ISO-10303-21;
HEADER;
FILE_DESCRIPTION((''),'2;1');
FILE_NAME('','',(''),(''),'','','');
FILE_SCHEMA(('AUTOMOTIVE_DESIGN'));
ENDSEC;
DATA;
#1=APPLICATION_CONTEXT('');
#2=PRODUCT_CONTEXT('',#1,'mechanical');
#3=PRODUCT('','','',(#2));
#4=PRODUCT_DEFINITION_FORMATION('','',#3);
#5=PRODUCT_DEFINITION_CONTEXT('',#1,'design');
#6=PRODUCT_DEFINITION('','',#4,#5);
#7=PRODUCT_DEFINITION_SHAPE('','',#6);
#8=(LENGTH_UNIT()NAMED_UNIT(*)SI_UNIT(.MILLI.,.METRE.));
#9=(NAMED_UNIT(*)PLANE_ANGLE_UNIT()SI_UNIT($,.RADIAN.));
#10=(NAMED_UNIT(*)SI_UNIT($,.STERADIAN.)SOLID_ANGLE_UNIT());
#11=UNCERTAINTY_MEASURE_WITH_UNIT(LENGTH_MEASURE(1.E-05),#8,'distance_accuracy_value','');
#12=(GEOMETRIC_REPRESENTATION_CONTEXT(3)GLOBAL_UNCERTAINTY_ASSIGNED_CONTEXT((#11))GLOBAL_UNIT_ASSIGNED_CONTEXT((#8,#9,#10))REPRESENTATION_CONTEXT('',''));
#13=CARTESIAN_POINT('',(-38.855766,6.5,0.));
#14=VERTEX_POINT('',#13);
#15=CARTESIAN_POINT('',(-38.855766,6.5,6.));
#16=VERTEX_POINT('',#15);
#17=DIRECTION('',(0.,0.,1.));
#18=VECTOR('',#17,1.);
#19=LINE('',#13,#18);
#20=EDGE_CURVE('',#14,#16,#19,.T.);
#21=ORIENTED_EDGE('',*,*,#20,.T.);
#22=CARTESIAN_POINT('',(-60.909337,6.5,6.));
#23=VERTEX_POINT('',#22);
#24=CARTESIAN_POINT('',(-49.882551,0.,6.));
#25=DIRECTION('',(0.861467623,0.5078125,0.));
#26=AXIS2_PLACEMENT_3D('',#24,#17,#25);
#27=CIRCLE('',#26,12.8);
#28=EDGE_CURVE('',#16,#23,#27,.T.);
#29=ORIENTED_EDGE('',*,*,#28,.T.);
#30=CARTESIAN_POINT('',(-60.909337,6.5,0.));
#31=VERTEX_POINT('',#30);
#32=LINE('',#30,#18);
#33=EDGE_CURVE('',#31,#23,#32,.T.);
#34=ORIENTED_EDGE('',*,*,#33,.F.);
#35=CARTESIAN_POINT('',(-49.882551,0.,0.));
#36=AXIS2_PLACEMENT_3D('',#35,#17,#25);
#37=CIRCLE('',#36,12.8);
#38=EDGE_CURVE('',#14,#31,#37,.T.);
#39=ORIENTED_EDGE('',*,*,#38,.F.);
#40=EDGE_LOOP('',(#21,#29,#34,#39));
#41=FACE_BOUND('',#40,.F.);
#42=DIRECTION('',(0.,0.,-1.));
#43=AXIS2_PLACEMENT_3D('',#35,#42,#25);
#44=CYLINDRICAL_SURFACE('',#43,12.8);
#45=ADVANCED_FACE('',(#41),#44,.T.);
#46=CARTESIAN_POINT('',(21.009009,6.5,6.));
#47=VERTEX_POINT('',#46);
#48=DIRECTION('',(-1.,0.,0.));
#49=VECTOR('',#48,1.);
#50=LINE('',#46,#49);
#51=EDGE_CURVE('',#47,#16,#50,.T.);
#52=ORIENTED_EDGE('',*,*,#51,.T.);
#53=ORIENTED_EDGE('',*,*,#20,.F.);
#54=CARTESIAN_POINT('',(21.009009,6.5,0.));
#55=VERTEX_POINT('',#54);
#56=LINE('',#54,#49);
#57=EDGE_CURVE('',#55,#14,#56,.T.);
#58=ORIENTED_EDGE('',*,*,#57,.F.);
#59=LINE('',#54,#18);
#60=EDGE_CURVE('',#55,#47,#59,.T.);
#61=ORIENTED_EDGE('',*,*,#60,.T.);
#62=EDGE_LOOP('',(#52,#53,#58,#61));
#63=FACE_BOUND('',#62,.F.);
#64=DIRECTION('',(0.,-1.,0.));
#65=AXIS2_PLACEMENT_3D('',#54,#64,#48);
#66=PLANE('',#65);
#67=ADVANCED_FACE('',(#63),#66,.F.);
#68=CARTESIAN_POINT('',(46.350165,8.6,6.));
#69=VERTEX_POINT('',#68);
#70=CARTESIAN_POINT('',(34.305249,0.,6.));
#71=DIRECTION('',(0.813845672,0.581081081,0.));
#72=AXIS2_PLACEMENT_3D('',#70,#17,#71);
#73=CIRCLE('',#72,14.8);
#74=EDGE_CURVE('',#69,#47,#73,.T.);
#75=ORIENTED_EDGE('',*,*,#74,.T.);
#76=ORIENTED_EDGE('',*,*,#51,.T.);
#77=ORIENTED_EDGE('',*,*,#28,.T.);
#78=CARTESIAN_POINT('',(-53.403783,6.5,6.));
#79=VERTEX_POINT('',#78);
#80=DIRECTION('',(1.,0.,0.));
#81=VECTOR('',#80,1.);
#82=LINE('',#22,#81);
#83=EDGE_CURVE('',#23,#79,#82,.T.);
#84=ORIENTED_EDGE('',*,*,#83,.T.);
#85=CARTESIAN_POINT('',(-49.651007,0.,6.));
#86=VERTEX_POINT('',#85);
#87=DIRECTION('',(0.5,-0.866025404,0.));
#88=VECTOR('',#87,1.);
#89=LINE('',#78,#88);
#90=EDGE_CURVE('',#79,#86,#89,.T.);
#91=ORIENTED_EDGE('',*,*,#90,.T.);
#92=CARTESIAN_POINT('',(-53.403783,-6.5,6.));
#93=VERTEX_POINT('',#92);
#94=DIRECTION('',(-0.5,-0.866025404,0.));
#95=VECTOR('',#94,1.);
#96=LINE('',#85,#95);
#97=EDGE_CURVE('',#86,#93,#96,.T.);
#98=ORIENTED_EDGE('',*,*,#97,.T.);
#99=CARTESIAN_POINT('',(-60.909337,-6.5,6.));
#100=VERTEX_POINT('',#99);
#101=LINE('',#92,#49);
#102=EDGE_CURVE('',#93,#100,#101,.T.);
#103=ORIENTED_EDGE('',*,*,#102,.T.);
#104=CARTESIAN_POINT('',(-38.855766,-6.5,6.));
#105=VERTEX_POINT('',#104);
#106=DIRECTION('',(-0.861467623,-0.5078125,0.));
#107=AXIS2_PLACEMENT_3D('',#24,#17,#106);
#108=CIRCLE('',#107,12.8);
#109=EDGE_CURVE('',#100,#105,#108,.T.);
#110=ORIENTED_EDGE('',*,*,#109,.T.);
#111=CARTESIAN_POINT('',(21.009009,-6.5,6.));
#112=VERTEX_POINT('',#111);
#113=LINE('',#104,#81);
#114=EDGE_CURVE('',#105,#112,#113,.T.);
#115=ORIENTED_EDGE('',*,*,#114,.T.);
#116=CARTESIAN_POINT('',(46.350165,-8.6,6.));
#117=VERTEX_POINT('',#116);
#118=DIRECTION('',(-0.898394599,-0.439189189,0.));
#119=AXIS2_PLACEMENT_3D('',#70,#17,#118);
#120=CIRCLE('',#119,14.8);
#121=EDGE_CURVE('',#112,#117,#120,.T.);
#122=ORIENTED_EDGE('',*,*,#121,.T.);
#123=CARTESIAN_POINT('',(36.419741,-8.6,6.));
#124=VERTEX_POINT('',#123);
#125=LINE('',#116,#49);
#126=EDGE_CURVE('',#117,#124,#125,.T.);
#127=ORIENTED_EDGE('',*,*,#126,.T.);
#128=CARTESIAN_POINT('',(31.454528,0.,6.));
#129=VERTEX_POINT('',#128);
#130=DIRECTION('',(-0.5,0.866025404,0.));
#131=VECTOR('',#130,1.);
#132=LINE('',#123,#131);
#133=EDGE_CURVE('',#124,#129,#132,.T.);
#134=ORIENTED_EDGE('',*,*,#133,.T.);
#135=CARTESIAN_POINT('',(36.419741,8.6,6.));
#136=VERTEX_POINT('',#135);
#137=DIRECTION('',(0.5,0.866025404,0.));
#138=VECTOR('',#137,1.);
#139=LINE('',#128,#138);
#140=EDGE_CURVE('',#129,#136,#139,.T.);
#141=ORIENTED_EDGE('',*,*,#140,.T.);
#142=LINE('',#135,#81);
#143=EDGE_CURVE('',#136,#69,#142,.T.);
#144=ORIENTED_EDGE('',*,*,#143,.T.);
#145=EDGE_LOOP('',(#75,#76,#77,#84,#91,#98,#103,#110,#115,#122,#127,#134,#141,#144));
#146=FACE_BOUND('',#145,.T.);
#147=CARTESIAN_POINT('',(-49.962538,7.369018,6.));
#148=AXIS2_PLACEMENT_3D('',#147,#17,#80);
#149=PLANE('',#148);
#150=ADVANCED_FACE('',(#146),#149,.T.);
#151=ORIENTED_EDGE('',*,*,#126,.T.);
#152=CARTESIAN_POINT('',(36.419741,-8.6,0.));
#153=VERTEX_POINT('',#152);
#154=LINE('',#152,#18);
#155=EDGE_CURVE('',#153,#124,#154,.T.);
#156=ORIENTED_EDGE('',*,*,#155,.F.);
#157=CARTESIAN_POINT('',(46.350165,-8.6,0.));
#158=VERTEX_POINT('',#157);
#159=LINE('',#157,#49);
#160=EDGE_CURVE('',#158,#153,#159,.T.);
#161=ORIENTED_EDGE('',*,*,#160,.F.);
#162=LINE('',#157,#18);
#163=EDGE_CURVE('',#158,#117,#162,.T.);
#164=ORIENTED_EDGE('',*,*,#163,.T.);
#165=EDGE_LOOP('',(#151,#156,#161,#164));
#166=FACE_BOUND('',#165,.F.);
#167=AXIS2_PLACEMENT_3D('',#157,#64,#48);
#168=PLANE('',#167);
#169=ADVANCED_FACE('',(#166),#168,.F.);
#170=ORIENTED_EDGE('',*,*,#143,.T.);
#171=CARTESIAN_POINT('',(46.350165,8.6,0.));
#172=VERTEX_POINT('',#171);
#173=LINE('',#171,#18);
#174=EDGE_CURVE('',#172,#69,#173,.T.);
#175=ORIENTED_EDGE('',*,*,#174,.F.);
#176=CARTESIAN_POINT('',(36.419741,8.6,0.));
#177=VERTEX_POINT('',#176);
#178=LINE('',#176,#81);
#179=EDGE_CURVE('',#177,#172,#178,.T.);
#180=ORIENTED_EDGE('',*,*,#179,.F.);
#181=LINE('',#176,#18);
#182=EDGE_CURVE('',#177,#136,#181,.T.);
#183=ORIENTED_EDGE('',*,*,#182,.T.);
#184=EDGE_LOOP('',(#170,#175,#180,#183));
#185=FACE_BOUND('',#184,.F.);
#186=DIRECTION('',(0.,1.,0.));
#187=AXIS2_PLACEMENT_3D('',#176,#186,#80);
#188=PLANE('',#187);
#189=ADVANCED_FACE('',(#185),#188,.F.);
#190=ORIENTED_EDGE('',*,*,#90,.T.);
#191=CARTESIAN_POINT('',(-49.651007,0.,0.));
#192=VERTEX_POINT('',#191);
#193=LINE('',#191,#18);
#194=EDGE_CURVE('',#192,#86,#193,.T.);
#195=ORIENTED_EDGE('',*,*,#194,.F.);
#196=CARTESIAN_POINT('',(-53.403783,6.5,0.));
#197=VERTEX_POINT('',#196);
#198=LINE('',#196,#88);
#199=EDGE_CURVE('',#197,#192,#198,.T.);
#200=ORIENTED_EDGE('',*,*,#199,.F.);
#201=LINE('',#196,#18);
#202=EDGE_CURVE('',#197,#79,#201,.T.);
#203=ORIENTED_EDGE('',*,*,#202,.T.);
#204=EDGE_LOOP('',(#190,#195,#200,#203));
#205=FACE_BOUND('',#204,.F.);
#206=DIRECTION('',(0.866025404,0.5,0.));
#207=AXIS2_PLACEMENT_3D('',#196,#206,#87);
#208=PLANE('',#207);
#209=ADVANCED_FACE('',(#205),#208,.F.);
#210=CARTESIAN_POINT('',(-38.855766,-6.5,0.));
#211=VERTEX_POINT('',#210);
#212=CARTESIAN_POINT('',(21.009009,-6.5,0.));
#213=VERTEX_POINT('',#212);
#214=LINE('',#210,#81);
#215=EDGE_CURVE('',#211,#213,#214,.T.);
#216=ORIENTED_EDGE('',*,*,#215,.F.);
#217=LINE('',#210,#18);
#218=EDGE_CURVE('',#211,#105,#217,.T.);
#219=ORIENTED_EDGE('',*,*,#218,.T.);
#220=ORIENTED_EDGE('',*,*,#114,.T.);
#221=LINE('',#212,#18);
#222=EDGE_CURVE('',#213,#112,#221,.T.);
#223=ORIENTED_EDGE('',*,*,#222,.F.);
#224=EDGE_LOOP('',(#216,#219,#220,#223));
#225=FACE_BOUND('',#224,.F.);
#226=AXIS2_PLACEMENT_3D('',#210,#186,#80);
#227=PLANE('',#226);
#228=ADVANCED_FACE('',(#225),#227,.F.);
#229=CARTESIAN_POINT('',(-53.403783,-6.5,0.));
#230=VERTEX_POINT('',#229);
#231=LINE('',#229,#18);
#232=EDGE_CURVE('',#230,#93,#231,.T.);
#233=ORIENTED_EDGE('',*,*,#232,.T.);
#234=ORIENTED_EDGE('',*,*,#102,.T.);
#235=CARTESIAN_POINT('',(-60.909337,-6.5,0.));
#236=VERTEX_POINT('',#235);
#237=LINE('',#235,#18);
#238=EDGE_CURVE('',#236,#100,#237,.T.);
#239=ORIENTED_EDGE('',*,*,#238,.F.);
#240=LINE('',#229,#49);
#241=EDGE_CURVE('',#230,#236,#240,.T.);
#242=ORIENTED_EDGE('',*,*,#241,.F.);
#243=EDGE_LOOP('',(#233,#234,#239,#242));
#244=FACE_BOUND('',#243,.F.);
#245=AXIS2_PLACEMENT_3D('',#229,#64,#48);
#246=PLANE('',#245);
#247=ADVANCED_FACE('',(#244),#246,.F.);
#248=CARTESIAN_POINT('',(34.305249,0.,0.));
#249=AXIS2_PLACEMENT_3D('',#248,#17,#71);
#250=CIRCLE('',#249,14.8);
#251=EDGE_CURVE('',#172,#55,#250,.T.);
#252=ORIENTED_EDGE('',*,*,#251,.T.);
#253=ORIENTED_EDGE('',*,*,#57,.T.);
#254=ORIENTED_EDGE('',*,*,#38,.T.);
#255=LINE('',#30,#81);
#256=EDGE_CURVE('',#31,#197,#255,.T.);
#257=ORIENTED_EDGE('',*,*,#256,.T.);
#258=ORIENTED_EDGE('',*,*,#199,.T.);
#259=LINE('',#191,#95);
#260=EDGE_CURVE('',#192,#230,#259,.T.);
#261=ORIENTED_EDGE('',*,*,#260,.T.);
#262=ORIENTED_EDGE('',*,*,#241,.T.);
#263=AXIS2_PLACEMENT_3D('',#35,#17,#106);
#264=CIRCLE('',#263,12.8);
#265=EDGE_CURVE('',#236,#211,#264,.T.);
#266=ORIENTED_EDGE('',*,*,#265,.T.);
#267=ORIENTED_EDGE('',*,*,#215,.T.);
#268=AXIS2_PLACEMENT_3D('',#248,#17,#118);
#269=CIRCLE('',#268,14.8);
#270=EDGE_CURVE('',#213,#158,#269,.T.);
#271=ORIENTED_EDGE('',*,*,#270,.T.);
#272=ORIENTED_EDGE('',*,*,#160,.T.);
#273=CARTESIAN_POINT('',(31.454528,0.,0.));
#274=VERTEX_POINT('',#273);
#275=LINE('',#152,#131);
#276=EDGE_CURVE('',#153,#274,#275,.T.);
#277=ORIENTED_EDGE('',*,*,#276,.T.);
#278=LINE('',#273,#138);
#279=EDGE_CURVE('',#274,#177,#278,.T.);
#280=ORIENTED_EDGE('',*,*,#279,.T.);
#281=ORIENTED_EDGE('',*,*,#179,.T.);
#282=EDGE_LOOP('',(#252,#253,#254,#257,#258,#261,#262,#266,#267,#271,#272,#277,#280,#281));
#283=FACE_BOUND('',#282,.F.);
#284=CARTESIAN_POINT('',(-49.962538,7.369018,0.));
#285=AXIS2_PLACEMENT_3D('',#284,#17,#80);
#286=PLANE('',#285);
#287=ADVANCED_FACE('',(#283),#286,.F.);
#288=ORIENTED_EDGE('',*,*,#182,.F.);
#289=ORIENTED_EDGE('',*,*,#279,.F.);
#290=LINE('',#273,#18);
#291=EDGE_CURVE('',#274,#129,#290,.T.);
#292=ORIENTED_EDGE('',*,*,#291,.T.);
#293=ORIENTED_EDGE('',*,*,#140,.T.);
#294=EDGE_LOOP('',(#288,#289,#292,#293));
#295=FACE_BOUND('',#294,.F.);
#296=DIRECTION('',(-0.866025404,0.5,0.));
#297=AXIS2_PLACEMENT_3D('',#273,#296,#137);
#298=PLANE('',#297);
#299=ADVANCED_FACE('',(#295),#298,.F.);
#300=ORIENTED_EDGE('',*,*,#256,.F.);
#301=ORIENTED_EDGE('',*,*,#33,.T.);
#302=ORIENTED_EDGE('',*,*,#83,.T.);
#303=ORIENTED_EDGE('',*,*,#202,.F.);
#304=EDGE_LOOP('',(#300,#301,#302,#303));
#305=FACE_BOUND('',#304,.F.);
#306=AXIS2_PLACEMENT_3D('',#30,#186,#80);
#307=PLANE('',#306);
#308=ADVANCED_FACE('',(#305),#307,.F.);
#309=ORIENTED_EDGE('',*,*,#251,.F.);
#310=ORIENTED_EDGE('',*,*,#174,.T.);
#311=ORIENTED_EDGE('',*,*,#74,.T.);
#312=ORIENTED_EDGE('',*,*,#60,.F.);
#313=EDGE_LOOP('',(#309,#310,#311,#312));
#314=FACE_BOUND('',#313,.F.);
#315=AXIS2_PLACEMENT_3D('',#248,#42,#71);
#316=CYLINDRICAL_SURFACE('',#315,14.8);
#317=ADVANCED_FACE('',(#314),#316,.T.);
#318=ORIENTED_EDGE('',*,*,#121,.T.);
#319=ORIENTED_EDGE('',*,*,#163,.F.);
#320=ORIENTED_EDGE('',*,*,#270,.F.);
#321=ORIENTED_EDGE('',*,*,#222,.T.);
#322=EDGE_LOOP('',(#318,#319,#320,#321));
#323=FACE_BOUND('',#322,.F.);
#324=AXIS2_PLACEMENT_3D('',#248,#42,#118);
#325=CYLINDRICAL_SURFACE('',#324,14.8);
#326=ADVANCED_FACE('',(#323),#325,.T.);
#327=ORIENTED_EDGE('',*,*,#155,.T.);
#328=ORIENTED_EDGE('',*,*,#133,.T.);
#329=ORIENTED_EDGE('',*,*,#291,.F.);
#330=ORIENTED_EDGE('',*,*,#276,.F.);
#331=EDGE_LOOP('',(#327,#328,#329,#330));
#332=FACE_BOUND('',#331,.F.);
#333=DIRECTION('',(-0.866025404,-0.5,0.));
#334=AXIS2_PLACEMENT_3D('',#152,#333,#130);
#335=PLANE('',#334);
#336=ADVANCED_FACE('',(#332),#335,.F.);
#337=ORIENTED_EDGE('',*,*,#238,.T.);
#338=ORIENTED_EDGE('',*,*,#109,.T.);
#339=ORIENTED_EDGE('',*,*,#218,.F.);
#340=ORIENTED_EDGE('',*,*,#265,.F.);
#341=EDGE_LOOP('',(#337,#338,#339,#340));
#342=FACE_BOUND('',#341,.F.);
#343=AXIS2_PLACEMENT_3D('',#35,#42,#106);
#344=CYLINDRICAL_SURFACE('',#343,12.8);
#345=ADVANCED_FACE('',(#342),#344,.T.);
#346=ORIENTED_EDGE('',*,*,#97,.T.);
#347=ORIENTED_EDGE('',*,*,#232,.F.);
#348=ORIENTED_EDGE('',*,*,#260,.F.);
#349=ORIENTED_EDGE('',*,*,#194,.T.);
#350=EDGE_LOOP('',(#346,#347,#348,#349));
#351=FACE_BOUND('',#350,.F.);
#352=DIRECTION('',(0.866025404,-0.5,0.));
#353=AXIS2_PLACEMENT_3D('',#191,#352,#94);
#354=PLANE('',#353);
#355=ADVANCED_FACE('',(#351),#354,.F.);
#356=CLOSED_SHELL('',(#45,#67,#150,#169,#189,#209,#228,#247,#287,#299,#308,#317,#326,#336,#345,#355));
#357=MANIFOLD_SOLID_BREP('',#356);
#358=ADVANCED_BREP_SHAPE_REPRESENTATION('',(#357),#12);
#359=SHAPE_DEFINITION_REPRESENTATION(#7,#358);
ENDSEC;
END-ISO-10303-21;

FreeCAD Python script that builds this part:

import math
import FreeCAD as App
import Part
import Sketcher
from FreeCAD import Vector
Q = App.Units.Quantity

doc = App.newDocument("Part")
body = doc.addObject("PartDesign::Body", "Body")

sketch1 = doc.addObject("Sketcher::SketchObject", "Sketch")
body.addObject(sketch1)
sketch1.AttachmentSupport = (doc.XY_Plane, [""])
sketch1.MapMode = "FlatFace"
sketch1.addGeometry([
    Part.ArcOfCircle(Part.Circle(Vector(-49.882551, 0, 0), Vector(0, 0, 1), 12.8), math.radians(30.518231), math.radians(149.481769)),
    Part.LineSegment(Vector(-60.909337, 6.5, 0), Vector(-53.403783, 6.5, 0)),
    Part.LineSegment(Vector(-53.403783, 6.5, 0), Vector(-49.651007, 0, 0)),
    Part.LineSegment(Vector(-49.651007, 0, 0), Vector(-53.403783, -6.5, 0)),
    Part.LineSegment(Vector(-53.403783, -6.5, 0), Vector(-60.909337, -6.5, 0)),
    Part.ArcOfCircle(Part.Circle(Vector(-49.882551, 0, 0), Vector(0, 0, 1), 12.8), math.radians(-149.481769), math.radians(-30.518231)),
    Part.LineSegment(Vector(-38.855766, -6.5, 0), Vector(21.009009, -6.5, 0)),
    Part.ArcOfCircle(Part.Circle(Vector(34.305249, 0, 0), Vector(0, 0, 1), 14.8), math.radians(-153.94784), math.radians(-35.526616)),
    Part.LineSegment(Vector(46.350165, -8.6, 0), Vector(36.419741, -8.6, 0)),
    Part.LineSegment(Vector(36.419741, -8.6, 0), Vector(31.454528, 0, 0)),
    Part.LineSegment(Vector(31.454528, 0, 0), Vector(36.419741, 8.6, 0)),
    Part.LineSegment(Vector(36.419741, 8.6, 0), Vector(46.350165, 8.6, 0)),
    Part.ArcOfCircle(Part.Circle(Vector(34.305249, 0, 0), Vector(0, 0, 1), 14.8), math.radians(35.526616), math.radians(153.94784)),
    Part.LineSegment(Vector(21.009009, 6.5, 0), Vector(-38.855766, 6.5, 0)),
], False)
sketch1.addConstraint([
    Sketcher.Constraint("Coincident", 0, 2, 1, 1),
    Sketcher.Constraint("Coincident", 1, 2, 2, 1),
    Sketcher.Constraint("Coincident", 2, 2, 3, 1),
    Sketcher.Constraint("Coincident", 3, 2, 4, 1),
    Sketcher.Constraint("Coincident", 4, 2, 5, 1),
    Sketcher.Constraint("Coincident", 5, 2, 6, 1),
    Sketcher.Constraint("Coincident", 6, 2, 7, 1),
    Sketcher.Constraint("Coincident", 7, 2, 8, 1),
    Sketcher.Constraint("Coincident", 8, 2, 9, 1),
    Sketcher.Constraint("Coincident", 9, 2, 10, 1),
    Sketcher.Constraint("Coincident", 10, 2, 11, 1),
    Sketcher.Constraint("Coincident", 11, 2, 12, 1),
    Sketcher.Constraint("Coincident", 12, 2, 13, 1),
    Sketcher.Constraint("Coincident", 13, 2, 0, 1),
    Sketcher.Constraint("Horizontal", 1),
    Sketcher.Constraint("Horizontal", 4),
    Sketcher.Constraint("Horizontal", 6),
    Sketcher.Constraint("Horizontal", 8),
    Sketcher.Constraint("Horizontal", 11),
    Sketcher.Constraint("Horizontal", 13),
    Sketcher.Constraint("Coincident", 5, 3, 0, 3),
    Sketcher.Constraint("Coincident", 12, 3, 7, 3),
    Sketcher.Constraint("Equal", 0, 5),
    Sketcher.Constraint("Equal", 7, 12),
    Sketcher.Constraint("Symmetric", 1, 2, 3, 2, -1),
    Sketcher.Constraint("Symmetric", 8, 2, 10, 2, -1),
    Sketcher.Constraint("Symmetric", 6, 2, 12, 2, -1),
    Sketcher.Constraint("PointOnObject", 0, 3, -1),
    Sketcher.Constraint("PointOnObject", 2, 2, -1),
    Sketcher.Constraint("PointOnObject", 9, 2, -1),
    Sketcher.Constraint("Parallel", 2, 9),
    Sketcher.Constraint("Horizontal", 4, 2, 5, 2),
    Sketcher.Constraint("Radius", 0, Q("12.8 mm")),
    Sketcher.Constraint("Radius", 7, Q("14.8 mm")),
    Sketcher.Constraint("Angle", 2, Q("-60 deg")),
    Sketcher.Constraint("DistanceY", 3, 2, 1, 2, Q("13 mm")),
    Sketcher.Constraint("DistanceY", 7, 2, -1, 1, Q("8.6 mm")),
    Sketcher.Constraint("DistanceX", 0, 3, 7, 3, Q("84.187801 mm")),
    Sketcher.Constraint("DistanceX", 1, 1, 1, 2, Q("7.505553 mm")),
    Sketcher.Constraint("DistanceX", 8, 2, 8, 1, Q("9.930425 mm")),
    Sketcher.Constraint("DistanceX", 0, 3, -1, 1, Q("49.882551 mm")),
])
pad1 = doc.addObject("PartDesign::Pad", "Pad")
body.addObject(pad1)
pad1.Profile = sketch1
pad1.Length = 6

doc.recompute()
